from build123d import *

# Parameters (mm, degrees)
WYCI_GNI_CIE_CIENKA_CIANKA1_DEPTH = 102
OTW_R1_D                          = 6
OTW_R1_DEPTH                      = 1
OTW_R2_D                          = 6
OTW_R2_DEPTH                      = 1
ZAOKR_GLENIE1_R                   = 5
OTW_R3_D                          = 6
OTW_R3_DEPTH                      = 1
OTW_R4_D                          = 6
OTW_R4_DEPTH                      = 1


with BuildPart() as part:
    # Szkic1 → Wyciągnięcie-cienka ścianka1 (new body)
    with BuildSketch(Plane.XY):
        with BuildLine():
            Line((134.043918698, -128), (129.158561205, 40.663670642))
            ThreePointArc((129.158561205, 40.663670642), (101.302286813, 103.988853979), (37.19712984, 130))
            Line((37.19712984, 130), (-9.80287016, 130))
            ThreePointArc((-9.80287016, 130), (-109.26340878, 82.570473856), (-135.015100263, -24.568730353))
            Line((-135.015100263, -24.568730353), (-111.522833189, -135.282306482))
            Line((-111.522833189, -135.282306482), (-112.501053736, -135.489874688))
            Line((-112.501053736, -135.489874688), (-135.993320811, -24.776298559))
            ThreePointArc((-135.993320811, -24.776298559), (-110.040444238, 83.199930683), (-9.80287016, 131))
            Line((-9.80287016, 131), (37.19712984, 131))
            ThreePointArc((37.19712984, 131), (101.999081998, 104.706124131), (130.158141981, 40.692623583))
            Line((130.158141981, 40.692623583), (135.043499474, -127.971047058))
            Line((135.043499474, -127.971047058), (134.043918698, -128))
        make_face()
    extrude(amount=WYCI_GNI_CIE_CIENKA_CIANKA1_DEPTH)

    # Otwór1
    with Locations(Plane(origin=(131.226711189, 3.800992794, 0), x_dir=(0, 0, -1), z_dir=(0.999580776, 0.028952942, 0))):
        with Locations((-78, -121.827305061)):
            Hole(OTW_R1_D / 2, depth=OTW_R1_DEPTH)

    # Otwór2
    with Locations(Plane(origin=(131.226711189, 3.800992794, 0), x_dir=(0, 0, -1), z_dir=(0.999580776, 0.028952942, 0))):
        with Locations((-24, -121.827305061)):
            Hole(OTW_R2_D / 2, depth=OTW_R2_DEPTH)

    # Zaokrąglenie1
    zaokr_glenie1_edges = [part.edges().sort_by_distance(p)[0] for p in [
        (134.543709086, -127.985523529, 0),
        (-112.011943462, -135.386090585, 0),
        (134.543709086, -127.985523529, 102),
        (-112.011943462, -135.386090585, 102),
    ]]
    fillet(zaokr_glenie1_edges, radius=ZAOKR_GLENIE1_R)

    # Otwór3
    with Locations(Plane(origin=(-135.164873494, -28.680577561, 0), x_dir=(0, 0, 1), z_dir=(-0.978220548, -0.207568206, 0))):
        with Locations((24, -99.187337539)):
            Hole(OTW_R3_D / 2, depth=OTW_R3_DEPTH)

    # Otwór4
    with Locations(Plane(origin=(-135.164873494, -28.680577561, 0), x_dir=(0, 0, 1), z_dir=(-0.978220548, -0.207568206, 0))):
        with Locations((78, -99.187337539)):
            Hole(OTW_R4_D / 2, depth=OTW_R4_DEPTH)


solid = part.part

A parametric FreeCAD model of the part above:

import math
import FreeCAD as App
import Part
import Sketcher
from FreeCAD import Vector
Q = App.Units.Quantity


def edges_at(feature, points):
    """Names of the edges that pass closest to the given points."""
    edges = feature.Shape.Edges
    near = lambda p: min(range(len(edges)), key=lambda i: edges[i].distToShape(Part.Vertex(*p))[0])
    return sorted({f"Edge{near(p) + 1}" for p in points})

doc = App.newDocument("Part")
body = doc.addObject("PartDesign::Body", "Body")

# Sketch on XY plane
sketch1 = body.newObject("Sketcher::SketchObject", "Sketch")
sketch1.AttachmentSupport = (doc.getObject("XY_Plane"), [""])
sketch1.MapMode = "FlatFace"
sketch1.addGeometry(Part.LineSegment(Vector(129.2, 40.7, 0), Vector(134, -128, 0)), False)
sketch1.addGeometry(Part.LineSegment(Vector(134, -128, 0), Vector(135, -128, 0)), False)
sketch1.addGeometry(Part.LineSegment(Vector(135, -128, 0), Vector(130.2, 40.7, 0)), False)
sketch1.addGeometry(Part.ArcOfCircle(Part.Circle(Vector(37.2, 38, 0), Vector(0, 0, 1), 93), math.radians(2), math.radians(90)), False)
sketch1.addGeometry(Part.LineSegment(Vector(37.2, 131, 0), Vector(-9.8, 131, 0)), False)
sketch1.addGeometry(Part.ArcOfCircle(Part.Circle(Vector(-9.8, 2, 0), Vector(0, 0, 1), 129), math.radians(90), math.radians(192)), False)
sketch1.addGeometry(Part.LineSegment(Vector(-136, -24.8, 0), Vector(-112.5, -135.5, 0)), False)
sketch1.addGeometry(Part.LineSegment(Vector(-112.5, -135.5, 0), Vector(-111.5, -135.3, 0)), False)
sketch1.addGeometry(Part.LineSegment(Vector(-111.5, -135.3, 0), Vector(-135, -24.6, 0)), False)
sketch1.addGeometry(Part.ArcOfCircle(Part.Circle(Vector(-9.8, 2, 0), Vector(0, 0, 1), 128), math.radians(90), math.radians(192)), False)
sketch1.addGeometry(Part.LineSegment(Vector(-9.8, 130, 0), Vector(37.2, 130, 0)), False)
sketch1.addGeometry(Part.ArcOfCircle(Part.Circle(Vector(37.2, 38, 0), Vector(0, 0, 1), 92), math.radians(2), math.radians(90)), False)
sketch1.addConstraint(Sketcher.Constraint("Coincident", 0, 2, 1, 1))
sketch1.addConstraint(Sketcher.Constraint("Coincident", 1, 2, 2, 1))
sketch1.addConstraint(Sketcher.Constraint("Tangent", 2, 2, 3, 1))
sketch1.addConstraint(Sketcher.Constraint("Tangent", 3, 2, 4, 1))
sketch1.addConstraint(Sketcher.Constraint("Tangent", 4, 2, 5, 1))
sketch1.addConstraint(Sketcher.Constraint("Tangent", 5, 2, 6, 1))
sketch1.addConstraint(Sketcher.Constraint("Coincident", 6, 2, 7, 1))
sketch1.addConstraint(Sketcher.Constraint("Coincident", 7, 2, 8, 1))
sketch1.addConstraint(Sketcher.Constraint("Tangent", 8, 2, 9, 2))
sketch1.addConstraint(Sketcher.Constraint("Tangent", 9, 1, 10, 1))
sketch1.addConstraint(Sketcher.Constraint("Tangent", 10, 2, 11, 2))
sketch1.addConstraint(Sketcher.Constraint("Tangent", 11, 1, 0, 1))
sketch1.addConstraint(Sketcher.Constraint("Horizontal", 4))
sketch1.addConstraint(Sketcher.Constraint("Horizontal", 10))
sketch1.addConstraint(Sketcher.Constraint("Coincident", 9, 3, 5, 3))
sketch1.addConstraint(Sketcher.Constraint("Coincident", 11, 3, 3, 3))
sketch1.addConstraint(Sketcher.Constraint("Perpendicular", 0, 1))
sketch1.addConstraint(Sketcher.Constraint("Perpendicular", 1, 2))
sketch1.addConstraint(Sketcher.Constraint("Perpendicular", 6, 7))
sketch1.addConstraint(Sketcher.Constraint("Perpendicular", 7, 8))
sketch1.addConstraint(Sketcher.Constraint("Radius", 3, Q("93 mm")))
sketch1.addConstraint(Sketcher.Constraint("Radius", 5, Q("129 mm")))
sketch1.addConstraint(Sketcher.Constraint("Radius", 9, Q("128 mm")))
sketch1.addConstraint(Sketcher.Constraint("DistanceX", 4, 2, 4, 1, Q("47 mm")))
sketch1.addConstraint(Sketcher.Constraint("DistanceY", -1, 1, 3, 3, Q("38 mm")))
sketch1.addConstraint(Sketcher.Constraint("DistanceY", 0, 2, -1, 1, Q("128 mm")))
sketch1.addConstraint(Sketcher.Constraint("DistanceX", -1, 1, 1, 2, Q("135.043499 mm")))
sketch1.addConstraint(Sketcher.Constraint("DistanceY", 5, 2, -1, 1, Q("24.776299 mm")))
sketch1.addConstraint(Sketcher.Constraint("DistanceX", 8, 2, -1, 1, Q("135.0151 mm")))
sketch1.addConstraint(Sketcher.Constraint("Distance", 6, Q("113.178543 mm")))
pad1 = body.newObject("PartDesign::Pad", "Pad")
pad1.Profile = sketch1
pad1.Length = 102

# Sketch on an angled plane
sketch2 = body.newObject("Sketcher::SketchObject", "Sketch001")
sketch2.Placement = App.Placement(Vector(131.226711, 3.800993, 0), App.Rotation(Vector(0, 0, -1), Vector(-0.028952942, 0.999580776, 0), Vector(0.999580776, 0.028952942, 0), "ZXY"))
sketch2.addGeometry(Part.Circle(Vector(-78, -121.8, 0), Vector(0, 0, 1), 3), False)
sketch2.addConstraint(Sketcher.Constraint("Diameter", 0, Q("6 mm")))
sketch2.addConstraint(Sketcher.Constraint("DistanceX", 0, 3, -1, 1, Q("78 mm")))
sketch2.addConstraint(Sketcher.Constraint("DistanceY", 0, 3, -1, 1, Q("121.827305 mm")))
doc.recompute()
hole = body.newObject("PartDesign::Hole", "Hole")
hole.Profile = sketch2
hole.ThreadType = "None"
hole.Diameter = 6
hole.DepthType = "Dimension"
hole.Depth = 1
hole.DrillPoint = "Flat"

# Sketch on an angled plane
sketch3 = body.newObject("Sketcher::SketchObject", "Sketch002")
sketch3.Placement = App.Placement(Vector(131.226711, 3.800993, 0), App.Rotation(Vector(0, 0, -1), Vector(-0.028952942, 0.999580776, 0), Vector(0.999580776, 0.028952942, 0), "ZXY"))
sketch3.addGeometry(Part.Circle(Vector(-24, -121.8, 0), Vector(0, 0, 1), 3), False)
sketch3.addConstraint(Sketcher.Constraint("Diameter", 0, Q("6 mm")))
sketch3.addConstraint(Sketcher.Constraint("DistanceX", 0, 3, -1, 1, Q("24 mm")))
sketch3.addConstraint(Sketcher.Constraint("DistanceY", 0, 3, -1, 1, Q("121.827305 mm")))
doc.recompute()
hole2 = body.newObject("PartDesign::Hole", "Hole001")
hole2.Profile = sketch3
hole2.ThreadType = "None"
hole2.Diameter = 6
hole2.DepthType = "Dimension"
hole2.Depth = 1
hole2.DrillPoint = "Flat"
doc.recompute()

fillet = body.newObject("PartDesign::Fillet", "Fillet")
fillet.Base = (hole2, edges_at(hole2, [
    (134.544, -127.986, 0),
    (-112.012, -135.386, 0),
    (134.544, -127.986, 102),
    (-112.012, -135.386, 102),
]))
fillet.Radius = 5

# Sketch on an angled plane
sketch4 = body.newObject("Sketcher::SketchObject", "Sketch003")
sketch4.Placement = App.Placement(Vector(-135.164873, -28.680578, 0), App.Rotation(Vector(0, 0, 1), Vector(-0.207568206, 0.978220548, 0), Vector(-0.978220548, -0.207568206, 0), "ZXY"))
sketch4.addGeometry(Part.Circle(Vector(24, -99.2, 0), Vector(0, 0, 1), 3), False)
sketch4.addConstraint(Sketcher.Constraint("Diameter", 0, Q("6 mm")))
sketch4.addConstraint(Sketcher.Constraint("DistanceX", -1, 1, 0, 3, Q("24 mm")))
sketch4.addConstraint(Sketcher.Constraint("DistanceY", 0, 3, -1, 1, Q("99.187338 mm")))
doc.recompute()
hole3 = body.newObject("PartDesign::Hole", "Hole002")
hole3.Profile = sketch4
hole3.ThreadType = "None"
hole3.Diameter = 6
hole3.DepthType = "Dimension"
hole3.Depth = 1
hole3.DrillPoint = "Flat"

# Sketch on an angled plane
sketch5 = body.newObject("Sketcher::SketchObject", "Sketch004")
sketch5.Placement = App.Placement(Vector(-135.164873, -28.680578, 0), App.Rotation(Vector(0, 0, 1), Vector(-0.207568206, 0.978220548, 0), Vector(-0.978220548, -0.207568206, 0), "ZXY"))
sketch5.addGeometry(Part.Circle(Vector(78, -99.2, 0), Vector(0, 0, 1), 3), False)
sketch5.addConstraint(Sketcher.Constraint("Diameter", 0, Q("6 mm")))
sketch5.addConstraint(Sketcher.Constraint("DistanceX", -1, 1, 0, 3, Q("78 mm")))
sketch5.addConstraint(Sketcher.Constraint("DistanceY", 0, 3, -1, 1, Q("99.187338 mm")))
doc.recompute()
hole4 = body.newObject("PartDesign::Hole", "Hole003")
hole4.Profile = sketch5
hole4.ThreadType = "None"
hole4.Diameter = 6
hole4.DepthType = "Dimension"
hole4.Depth = 1
hole4.DrillPoint = "Flat"

doc.recompute()
